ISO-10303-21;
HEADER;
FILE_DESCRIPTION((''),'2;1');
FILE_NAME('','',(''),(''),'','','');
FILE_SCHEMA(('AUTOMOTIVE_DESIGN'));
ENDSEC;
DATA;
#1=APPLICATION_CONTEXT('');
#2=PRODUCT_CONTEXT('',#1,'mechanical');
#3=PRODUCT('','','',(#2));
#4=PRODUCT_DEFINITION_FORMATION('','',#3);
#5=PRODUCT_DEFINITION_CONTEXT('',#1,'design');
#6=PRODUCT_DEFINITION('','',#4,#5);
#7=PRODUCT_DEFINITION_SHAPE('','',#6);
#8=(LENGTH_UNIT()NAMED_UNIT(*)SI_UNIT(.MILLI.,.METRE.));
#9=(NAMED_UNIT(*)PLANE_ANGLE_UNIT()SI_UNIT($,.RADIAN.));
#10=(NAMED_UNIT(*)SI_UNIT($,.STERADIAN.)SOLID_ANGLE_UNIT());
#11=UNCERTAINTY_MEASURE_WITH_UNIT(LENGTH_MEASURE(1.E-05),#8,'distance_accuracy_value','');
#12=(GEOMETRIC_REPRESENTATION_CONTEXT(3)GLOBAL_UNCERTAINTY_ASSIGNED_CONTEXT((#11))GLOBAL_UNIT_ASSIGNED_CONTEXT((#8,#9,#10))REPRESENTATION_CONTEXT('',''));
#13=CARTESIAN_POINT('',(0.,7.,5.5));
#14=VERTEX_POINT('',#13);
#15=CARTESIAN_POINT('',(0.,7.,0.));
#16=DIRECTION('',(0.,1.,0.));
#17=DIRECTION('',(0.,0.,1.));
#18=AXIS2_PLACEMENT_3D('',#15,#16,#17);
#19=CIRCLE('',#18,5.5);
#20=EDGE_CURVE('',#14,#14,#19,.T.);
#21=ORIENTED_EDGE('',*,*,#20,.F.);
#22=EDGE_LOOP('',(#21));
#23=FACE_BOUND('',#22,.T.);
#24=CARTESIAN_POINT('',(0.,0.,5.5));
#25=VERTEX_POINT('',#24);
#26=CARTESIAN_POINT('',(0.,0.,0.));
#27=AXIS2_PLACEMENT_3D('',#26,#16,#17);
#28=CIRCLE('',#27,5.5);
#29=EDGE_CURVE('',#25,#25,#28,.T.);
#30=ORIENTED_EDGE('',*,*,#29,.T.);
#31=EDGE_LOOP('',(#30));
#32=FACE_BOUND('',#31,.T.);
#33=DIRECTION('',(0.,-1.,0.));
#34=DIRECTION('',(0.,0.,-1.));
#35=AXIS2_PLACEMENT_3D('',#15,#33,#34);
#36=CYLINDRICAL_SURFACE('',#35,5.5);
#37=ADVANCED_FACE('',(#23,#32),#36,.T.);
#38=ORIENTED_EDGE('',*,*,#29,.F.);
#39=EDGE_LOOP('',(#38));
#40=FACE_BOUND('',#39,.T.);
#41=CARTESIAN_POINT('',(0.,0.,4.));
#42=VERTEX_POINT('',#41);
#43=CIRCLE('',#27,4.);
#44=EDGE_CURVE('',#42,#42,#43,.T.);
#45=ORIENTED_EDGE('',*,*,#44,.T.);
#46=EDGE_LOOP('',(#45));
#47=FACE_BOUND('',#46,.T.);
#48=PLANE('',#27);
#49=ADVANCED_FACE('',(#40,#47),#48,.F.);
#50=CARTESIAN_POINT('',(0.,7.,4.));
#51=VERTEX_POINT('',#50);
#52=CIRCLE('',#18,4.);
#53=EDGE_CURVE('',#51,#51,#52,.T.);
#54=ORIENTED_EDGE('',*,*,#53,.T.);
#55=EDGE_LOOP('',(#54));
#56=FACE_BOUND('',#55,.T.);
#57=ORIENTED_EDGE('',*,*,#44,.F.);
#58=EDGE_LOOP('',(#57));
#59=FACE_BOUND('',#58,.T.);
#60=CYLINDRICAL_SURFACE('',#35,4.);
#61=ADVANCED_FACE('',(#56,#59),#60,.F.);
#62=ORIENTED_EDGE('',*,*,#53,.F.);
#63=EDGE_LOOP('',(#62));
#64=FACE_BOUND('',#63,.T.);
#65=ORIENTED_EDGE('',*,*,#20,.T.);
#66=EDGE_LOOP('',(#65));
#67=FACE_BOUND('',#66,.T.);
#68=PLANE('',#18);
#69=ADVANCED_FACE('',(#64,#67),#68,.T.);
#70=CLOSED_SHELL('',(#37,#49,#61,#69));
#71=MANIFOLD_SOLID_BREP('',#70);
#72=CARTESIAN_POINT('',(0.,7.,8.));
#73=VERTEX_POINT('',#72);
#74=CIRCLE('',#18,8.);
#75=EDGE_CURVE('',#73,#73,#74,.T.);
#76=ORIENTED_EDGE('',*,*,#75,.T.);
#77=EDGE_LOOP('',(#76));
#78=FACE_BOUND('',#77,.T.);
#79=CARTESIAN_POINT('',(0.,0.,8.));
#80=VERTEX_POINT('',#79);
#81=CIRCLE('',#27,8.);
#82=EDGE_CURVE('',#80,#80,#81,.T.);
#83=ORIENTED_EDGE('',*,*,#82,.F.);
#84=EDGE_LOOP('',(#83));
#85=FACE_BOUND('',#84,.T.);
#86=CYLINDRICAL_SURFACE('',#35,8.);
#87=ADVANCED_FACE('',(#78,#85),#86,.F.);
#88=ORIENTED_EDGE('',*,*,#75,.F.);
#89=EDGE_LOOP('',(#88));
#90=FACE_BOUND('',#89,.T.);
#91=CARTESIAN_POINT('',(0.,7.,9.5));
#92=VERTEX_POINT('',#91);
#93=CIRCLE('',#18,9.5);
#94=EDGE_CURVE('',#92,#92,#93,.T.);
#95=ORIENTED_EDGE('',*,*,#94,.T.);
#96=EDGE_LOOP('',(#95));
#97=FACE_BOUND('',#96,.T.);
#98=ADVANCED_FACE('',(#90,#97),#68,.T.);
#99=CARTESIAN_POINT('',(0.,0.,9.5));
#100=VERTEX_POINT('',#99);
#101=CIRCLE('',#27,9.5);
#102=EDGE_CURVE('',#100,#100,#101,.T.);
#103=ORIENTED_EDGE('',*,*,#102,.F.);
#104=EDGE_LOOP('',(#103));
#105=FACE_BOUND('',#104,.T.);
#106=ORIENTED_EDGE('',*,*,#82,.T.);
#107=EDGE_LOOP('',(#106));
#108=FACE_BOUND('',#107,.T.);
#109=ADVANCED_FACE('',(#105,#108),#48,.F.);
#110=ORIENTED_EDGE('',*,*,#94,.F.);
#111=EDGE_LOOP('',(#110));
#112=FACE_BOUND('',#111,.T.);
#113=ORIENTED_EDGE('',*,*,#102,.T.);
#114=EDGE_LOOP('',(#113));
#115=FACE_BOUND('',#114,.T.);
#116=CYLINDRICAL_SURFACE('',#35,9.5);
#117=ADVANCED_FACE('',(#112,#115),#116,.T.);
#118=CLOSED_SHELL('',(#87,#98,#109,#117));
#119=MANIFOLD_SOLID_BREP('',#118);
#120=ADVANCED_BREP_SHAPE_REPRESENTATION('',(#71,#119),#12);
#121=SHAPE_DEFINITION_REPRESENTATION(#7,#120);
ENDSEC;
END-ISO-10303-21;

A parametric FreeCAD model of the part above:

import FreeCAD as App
import Part
import Sketcher
Q = App.Units.Quantity

doc = App.newDocument("Part")
params = doc.addObject("Spreadsheet::Sheet", "Params")
for row, (alias, value) in enumerate([
    ("sketch1_diameter", "11 mm"),
    ("sketch1_diameter2", "8 mm"),
    ("pad1_length", "7 mm"),
    ("sketch2_diameter", "19 mm"),
    ("sketch2_diameter2", "16 mm"),
    ("pad2_length", "7 mm"),
], start=1):
    params.set(f"A{row}", alias)
    params.set(f"B{row}", "=" + value)
    params.setAlias(f"B{row}", alias)

body = doc.addObject("PartDesign::Body", "Body")

# Sketch on XZ plane
sketch1 = doc.addObject("Sketcher::SketchObject", "Sketch")
body.addObject(sketch1)
sketch1.AttachmentSupport = (doc.XZ_Plane, [""])
sketch1.MapMode = "FlatFace"
sketch1.addGeometry(Part.Circle(App.Vector(0, 0, 0), App.Vector(0, 0, 1), 5.5), False)
sketch1.addGeometry(Part.Circle(App.Vector(0, 0, 0), App.Vector(0, 0, 1), 4), False)
sketch1.addConstraint(Sketcher.Constraint("Coincident", 0, 3, -1, 1))
sketch1.addConstraint(Sketcher.Constraint("Coincident", 1, 3, -1, 1))
sketch1.addConstraint(Sketcher.Constraint("Diameter", 0, Q("11 mm")))
sketch1.addConstraint(Sketcher.Constraint("Diameter", 1, Q("8 mm")))
sketch1.setExpression("Constraints[2]", "Params.sketch1_diameter")
sketch1.setExpression("Constraints[3]", "Params.sketch1_diameter2")
pad1 = doc.addObject("PartDesign::Pad", "Pad")
body.addObject(pad1)
pad1.Profile = sketch1
pad1.setExpression("Length", "Params.pad1_length")
pad1.Reversed = True
body2 = doc.addObject("PartDesign::Body", "Body001")

# Sketch on XZ plane
sketch2 = doc.addObject("Sketcher::SketchObject", "Sketch001")
body2.addObject(sketch2)
sketch2.AttachmentSupport = (doc.getObject("XZ_Plane001"), [""])
sketch2.MapMode = "FlatFace"
sketch2.addGeometry(Part.Circle(App.Vector(0, 0, 0), App.Vector(0, 0, 1), 10), False)
sketch2.addGeometry(Part.Circle(App.Vector(0, 0, 0), App.Vector(0, 0, 1), 8), False)
sketch2.addConstraint(Sketcher.Constraint("Coincident", 0, 3, -1, 1))
sketch2.addConstraint(Sketcher.Constraint("Coincident", 1, 3, -1, 1))
sketch2.addConstraint(Sketcher.Constraint("Diameter", 0, Q("19 mm")))
sketch2.addConstraint(Sketcher.Constraint("Diameter", 1, Q("16 mm")))
sketch2.setExpression("Constraints[2]", "Params.sketch2_diameter")
sketch2.setExpression("Constraints[3]", "Params.sketch2_diameter2")
pad2 = doc.addObject("PartDesign::Pad", "Pad001")
body2.addObject(pad2)
pad2.Profile = sketch2
pad2.setExpression("Length", "Params.pad2_length")
pad2.Reversed = True

doc.recompute()
